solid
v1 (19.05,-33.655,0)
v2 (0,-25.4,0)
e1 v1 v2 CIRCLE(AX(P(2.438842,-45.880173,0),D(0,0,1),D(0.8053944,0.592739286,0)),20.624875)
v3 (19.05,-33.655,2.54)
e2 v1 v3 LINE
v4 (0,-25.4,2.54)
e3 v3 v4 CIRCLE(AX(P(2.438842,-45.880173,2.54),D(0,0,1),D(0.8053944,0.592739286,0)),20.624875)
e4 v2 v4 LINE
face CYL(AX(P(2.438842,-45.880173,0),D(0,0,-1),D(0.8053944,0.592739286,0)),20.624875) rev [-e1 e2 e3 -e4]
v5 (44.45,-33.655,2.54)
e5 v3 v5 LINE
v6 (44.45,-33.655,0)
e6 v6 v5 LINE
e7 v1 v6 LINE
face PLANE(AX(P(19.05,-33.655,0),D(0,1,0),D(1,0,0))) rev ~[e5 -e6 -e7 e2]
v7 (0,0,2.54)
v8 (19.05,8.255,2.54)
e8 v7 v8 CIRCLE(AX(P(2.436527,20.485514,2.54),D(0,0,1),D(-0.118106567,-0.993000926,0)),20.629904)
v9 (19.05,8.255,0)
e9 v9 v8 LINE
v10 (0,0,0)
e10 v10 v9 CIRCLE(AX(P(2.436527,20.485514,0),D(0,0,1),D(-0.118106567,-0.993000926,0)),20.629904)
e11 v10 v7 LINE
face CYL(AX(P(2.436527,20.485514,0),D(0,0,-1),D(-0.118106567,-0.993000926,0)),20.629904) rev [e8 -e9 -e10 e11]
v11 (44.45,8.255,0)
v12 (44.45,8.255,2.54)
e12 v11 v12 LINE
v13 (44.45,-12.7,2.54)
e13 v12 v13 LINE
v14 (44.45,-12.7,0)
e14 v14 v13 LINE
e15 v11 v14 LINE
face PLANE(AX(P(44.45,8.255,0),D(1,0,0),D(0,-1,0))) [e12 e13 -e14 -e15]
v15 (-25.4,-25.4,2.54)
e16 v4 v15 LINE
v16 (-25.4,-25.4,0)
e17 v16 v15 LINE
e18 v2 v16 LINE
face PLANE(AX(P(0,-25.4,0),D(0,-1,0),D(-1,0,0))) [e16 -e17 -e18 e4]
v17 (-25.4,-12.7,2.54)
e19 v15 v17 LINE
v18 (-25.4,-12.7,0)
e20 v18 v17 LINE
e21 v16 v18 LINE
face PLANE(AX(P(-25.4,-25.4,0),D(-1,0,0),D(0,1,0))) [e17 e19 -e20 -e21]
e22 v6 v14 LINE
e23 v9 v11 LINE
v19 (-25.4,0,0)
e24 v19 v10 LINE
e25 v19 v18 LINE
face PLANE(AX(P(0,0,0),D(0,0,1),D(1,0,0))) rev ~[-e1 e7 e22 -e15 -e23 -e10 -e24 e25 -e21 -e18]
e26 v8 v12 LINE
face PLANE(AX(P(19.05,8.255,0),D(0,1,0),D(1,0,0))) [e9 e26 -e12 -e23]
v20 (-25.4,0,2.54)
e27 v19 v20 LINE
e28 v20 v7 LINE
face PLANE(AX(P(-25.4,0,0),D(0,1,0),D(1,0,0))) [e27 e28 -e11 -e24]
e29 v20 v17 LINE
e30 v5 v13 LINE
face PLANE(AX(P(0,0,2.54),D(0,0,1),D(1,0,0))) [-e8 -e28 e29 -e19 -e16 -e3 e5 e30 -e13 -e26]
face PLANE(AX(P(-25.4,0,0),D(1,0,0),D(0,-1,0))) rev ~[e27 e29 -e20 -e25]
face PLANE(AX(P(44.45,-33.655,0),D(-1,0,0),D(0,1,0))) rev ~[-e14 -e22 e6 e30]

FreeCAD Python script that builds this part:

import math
import FreeCAD as App
import Part
import Sketcher
Q = App.Units.Quantity

doc = App.newDocument("Part")
body = doc.addObject("PartDesign::Body", "Body")

sketch1 = body.newObject("Sketcher::SketchObject", "Sketch")
sketch1.AttachmentSupport = (doc.getObject("XY_Plane"), [""])
sketch1.MapMode = "FlatFace"
sketch1.addGeometry(Part.LineSegment(App.Vector(0, 0, 0), App.Vector(-25, 0, 0)), False)
sketch1.addGeometry(Part.LineSegment(App.Vector(-25, 0, 0), App.Vector(-25, -25, 0)), False)
sketch1.addGeometry(Part.LineSegment(App.Vector(-25, -25, 0), App.Vector(0, -25, 0)), False)
sketch1.addGeometry(Part.ArcOfCircle(Part.Circle(App.Vector(2, -46, 0), App.Vector(0, 0, 1), 21), math.radians(36), math.radians(97)), False)
sketch1.addGeometry(Part.LineSegment(App.Vector(19, -34, 0), App.Vector(44, -34, 0)), False)
sketch1.addGeometry(Part.LineSegment(App.Vector(44, -34, 0), App.Vector(44, 8, 0)), False)
sketch1.addGeometry(Part.LineSegment(App.Vector(44, 8, 0), App.Vector(19, 8, 0)), False)
sketch1.addGeometry(Part.ArcOfCircle(Part.Circle(App.Vector(2, 20, 0), App.Vector(0, 0, 1), 21), math.radians(-97), math.radians(-36)), False)
sketch1.addConstraint(Sketcher.Constraint("Coincident", 0, 2, 1, 1))
sketch1.addConstraint(Sketcher.Constraint("Coincident", 1, 2, 2, 1))
sketch1.addConstraint(Sketcher.Constraint("Coincident", 2, 2, 3, 2))
sketch1.addConstraint(Sketcher.Constraint("Coincident", 3, 1, 4, 1))
sketch1.addConstraint(Sketcher.Constraint("Coincident", 4, 2, 5, 1))
sketch1.addConstraint(Sketcher.Constraint("Coincident", 5, 2, 6, 1))
sketch1.addConstraint(Sketcher.Constraint("Coincident", 6, 2, 7, 2))
sketch1.addConstraint(Sketcher.Constraint("Coincident", 7, 1, 0, 1))
sketch1.addConstraint(Sketcher.Constraint("Horizontal", 0))
sketch1.addConstraint(Sketcher.Constraint("Vertical", 1))
sketch1.addConstraint(Sketcher.Constraint("Horizontal", 2))
sketch1.addConstraint(Sketcher.Constraint("Horizontal", 4))
sketch1.addConstraint(Sketcher.Constraint("Vertical", 5))
sketch1.addConstraint(Sketcher.Constraint("Horizontal", 6))
sketch1.addConstraint(Sketcher.Constraint("Coincident", 7, 1, -1, 1))
sketch1.addConstraint(Sketcher.Constraint("PointOnObject", 2, 2, -2))
sketch1.addConstraint(Sketcher.Constraint("Vertical", 3, 1, 6, 2))
sketch1.addConstraint(Sketcher.Constraint("Equal", 2, 4))
sketch1.addConstraint(Sketcher.Constraint("Equal", 6, 1))
sketch1.addConstraint(Sketcher.Constraint("DistanceX", 0, 2, 0, 1, Q("1 in")))
sketch1.addConstraint(Sketcher.Constraint("Radius", 3, Q("0.812 in")))
sketch1.addConstraint(Sketcher.Constraint("DistanceY", 5, 1, 5, 2, Q("1.65 in")))
sketch1.addConstraint(Sketcher.Constraint("Radius", 7, Q("0.8122 in")))
sketch1.addConstraint(Sketcher.Constraint("DistanceX", -1, 1, 3, 1, Q("0.75 in")))
sketch1.addConstraint(Sketcher.Constraint("DistanceY", 3, 1, -1, 1, Q("1.325 in")))
pad1 = body.newObject("PartDesign::Pad", "Pad")
pad1.Profile = sketch1
pad1.Length = Q("0.1 in")

doc.recompute()
